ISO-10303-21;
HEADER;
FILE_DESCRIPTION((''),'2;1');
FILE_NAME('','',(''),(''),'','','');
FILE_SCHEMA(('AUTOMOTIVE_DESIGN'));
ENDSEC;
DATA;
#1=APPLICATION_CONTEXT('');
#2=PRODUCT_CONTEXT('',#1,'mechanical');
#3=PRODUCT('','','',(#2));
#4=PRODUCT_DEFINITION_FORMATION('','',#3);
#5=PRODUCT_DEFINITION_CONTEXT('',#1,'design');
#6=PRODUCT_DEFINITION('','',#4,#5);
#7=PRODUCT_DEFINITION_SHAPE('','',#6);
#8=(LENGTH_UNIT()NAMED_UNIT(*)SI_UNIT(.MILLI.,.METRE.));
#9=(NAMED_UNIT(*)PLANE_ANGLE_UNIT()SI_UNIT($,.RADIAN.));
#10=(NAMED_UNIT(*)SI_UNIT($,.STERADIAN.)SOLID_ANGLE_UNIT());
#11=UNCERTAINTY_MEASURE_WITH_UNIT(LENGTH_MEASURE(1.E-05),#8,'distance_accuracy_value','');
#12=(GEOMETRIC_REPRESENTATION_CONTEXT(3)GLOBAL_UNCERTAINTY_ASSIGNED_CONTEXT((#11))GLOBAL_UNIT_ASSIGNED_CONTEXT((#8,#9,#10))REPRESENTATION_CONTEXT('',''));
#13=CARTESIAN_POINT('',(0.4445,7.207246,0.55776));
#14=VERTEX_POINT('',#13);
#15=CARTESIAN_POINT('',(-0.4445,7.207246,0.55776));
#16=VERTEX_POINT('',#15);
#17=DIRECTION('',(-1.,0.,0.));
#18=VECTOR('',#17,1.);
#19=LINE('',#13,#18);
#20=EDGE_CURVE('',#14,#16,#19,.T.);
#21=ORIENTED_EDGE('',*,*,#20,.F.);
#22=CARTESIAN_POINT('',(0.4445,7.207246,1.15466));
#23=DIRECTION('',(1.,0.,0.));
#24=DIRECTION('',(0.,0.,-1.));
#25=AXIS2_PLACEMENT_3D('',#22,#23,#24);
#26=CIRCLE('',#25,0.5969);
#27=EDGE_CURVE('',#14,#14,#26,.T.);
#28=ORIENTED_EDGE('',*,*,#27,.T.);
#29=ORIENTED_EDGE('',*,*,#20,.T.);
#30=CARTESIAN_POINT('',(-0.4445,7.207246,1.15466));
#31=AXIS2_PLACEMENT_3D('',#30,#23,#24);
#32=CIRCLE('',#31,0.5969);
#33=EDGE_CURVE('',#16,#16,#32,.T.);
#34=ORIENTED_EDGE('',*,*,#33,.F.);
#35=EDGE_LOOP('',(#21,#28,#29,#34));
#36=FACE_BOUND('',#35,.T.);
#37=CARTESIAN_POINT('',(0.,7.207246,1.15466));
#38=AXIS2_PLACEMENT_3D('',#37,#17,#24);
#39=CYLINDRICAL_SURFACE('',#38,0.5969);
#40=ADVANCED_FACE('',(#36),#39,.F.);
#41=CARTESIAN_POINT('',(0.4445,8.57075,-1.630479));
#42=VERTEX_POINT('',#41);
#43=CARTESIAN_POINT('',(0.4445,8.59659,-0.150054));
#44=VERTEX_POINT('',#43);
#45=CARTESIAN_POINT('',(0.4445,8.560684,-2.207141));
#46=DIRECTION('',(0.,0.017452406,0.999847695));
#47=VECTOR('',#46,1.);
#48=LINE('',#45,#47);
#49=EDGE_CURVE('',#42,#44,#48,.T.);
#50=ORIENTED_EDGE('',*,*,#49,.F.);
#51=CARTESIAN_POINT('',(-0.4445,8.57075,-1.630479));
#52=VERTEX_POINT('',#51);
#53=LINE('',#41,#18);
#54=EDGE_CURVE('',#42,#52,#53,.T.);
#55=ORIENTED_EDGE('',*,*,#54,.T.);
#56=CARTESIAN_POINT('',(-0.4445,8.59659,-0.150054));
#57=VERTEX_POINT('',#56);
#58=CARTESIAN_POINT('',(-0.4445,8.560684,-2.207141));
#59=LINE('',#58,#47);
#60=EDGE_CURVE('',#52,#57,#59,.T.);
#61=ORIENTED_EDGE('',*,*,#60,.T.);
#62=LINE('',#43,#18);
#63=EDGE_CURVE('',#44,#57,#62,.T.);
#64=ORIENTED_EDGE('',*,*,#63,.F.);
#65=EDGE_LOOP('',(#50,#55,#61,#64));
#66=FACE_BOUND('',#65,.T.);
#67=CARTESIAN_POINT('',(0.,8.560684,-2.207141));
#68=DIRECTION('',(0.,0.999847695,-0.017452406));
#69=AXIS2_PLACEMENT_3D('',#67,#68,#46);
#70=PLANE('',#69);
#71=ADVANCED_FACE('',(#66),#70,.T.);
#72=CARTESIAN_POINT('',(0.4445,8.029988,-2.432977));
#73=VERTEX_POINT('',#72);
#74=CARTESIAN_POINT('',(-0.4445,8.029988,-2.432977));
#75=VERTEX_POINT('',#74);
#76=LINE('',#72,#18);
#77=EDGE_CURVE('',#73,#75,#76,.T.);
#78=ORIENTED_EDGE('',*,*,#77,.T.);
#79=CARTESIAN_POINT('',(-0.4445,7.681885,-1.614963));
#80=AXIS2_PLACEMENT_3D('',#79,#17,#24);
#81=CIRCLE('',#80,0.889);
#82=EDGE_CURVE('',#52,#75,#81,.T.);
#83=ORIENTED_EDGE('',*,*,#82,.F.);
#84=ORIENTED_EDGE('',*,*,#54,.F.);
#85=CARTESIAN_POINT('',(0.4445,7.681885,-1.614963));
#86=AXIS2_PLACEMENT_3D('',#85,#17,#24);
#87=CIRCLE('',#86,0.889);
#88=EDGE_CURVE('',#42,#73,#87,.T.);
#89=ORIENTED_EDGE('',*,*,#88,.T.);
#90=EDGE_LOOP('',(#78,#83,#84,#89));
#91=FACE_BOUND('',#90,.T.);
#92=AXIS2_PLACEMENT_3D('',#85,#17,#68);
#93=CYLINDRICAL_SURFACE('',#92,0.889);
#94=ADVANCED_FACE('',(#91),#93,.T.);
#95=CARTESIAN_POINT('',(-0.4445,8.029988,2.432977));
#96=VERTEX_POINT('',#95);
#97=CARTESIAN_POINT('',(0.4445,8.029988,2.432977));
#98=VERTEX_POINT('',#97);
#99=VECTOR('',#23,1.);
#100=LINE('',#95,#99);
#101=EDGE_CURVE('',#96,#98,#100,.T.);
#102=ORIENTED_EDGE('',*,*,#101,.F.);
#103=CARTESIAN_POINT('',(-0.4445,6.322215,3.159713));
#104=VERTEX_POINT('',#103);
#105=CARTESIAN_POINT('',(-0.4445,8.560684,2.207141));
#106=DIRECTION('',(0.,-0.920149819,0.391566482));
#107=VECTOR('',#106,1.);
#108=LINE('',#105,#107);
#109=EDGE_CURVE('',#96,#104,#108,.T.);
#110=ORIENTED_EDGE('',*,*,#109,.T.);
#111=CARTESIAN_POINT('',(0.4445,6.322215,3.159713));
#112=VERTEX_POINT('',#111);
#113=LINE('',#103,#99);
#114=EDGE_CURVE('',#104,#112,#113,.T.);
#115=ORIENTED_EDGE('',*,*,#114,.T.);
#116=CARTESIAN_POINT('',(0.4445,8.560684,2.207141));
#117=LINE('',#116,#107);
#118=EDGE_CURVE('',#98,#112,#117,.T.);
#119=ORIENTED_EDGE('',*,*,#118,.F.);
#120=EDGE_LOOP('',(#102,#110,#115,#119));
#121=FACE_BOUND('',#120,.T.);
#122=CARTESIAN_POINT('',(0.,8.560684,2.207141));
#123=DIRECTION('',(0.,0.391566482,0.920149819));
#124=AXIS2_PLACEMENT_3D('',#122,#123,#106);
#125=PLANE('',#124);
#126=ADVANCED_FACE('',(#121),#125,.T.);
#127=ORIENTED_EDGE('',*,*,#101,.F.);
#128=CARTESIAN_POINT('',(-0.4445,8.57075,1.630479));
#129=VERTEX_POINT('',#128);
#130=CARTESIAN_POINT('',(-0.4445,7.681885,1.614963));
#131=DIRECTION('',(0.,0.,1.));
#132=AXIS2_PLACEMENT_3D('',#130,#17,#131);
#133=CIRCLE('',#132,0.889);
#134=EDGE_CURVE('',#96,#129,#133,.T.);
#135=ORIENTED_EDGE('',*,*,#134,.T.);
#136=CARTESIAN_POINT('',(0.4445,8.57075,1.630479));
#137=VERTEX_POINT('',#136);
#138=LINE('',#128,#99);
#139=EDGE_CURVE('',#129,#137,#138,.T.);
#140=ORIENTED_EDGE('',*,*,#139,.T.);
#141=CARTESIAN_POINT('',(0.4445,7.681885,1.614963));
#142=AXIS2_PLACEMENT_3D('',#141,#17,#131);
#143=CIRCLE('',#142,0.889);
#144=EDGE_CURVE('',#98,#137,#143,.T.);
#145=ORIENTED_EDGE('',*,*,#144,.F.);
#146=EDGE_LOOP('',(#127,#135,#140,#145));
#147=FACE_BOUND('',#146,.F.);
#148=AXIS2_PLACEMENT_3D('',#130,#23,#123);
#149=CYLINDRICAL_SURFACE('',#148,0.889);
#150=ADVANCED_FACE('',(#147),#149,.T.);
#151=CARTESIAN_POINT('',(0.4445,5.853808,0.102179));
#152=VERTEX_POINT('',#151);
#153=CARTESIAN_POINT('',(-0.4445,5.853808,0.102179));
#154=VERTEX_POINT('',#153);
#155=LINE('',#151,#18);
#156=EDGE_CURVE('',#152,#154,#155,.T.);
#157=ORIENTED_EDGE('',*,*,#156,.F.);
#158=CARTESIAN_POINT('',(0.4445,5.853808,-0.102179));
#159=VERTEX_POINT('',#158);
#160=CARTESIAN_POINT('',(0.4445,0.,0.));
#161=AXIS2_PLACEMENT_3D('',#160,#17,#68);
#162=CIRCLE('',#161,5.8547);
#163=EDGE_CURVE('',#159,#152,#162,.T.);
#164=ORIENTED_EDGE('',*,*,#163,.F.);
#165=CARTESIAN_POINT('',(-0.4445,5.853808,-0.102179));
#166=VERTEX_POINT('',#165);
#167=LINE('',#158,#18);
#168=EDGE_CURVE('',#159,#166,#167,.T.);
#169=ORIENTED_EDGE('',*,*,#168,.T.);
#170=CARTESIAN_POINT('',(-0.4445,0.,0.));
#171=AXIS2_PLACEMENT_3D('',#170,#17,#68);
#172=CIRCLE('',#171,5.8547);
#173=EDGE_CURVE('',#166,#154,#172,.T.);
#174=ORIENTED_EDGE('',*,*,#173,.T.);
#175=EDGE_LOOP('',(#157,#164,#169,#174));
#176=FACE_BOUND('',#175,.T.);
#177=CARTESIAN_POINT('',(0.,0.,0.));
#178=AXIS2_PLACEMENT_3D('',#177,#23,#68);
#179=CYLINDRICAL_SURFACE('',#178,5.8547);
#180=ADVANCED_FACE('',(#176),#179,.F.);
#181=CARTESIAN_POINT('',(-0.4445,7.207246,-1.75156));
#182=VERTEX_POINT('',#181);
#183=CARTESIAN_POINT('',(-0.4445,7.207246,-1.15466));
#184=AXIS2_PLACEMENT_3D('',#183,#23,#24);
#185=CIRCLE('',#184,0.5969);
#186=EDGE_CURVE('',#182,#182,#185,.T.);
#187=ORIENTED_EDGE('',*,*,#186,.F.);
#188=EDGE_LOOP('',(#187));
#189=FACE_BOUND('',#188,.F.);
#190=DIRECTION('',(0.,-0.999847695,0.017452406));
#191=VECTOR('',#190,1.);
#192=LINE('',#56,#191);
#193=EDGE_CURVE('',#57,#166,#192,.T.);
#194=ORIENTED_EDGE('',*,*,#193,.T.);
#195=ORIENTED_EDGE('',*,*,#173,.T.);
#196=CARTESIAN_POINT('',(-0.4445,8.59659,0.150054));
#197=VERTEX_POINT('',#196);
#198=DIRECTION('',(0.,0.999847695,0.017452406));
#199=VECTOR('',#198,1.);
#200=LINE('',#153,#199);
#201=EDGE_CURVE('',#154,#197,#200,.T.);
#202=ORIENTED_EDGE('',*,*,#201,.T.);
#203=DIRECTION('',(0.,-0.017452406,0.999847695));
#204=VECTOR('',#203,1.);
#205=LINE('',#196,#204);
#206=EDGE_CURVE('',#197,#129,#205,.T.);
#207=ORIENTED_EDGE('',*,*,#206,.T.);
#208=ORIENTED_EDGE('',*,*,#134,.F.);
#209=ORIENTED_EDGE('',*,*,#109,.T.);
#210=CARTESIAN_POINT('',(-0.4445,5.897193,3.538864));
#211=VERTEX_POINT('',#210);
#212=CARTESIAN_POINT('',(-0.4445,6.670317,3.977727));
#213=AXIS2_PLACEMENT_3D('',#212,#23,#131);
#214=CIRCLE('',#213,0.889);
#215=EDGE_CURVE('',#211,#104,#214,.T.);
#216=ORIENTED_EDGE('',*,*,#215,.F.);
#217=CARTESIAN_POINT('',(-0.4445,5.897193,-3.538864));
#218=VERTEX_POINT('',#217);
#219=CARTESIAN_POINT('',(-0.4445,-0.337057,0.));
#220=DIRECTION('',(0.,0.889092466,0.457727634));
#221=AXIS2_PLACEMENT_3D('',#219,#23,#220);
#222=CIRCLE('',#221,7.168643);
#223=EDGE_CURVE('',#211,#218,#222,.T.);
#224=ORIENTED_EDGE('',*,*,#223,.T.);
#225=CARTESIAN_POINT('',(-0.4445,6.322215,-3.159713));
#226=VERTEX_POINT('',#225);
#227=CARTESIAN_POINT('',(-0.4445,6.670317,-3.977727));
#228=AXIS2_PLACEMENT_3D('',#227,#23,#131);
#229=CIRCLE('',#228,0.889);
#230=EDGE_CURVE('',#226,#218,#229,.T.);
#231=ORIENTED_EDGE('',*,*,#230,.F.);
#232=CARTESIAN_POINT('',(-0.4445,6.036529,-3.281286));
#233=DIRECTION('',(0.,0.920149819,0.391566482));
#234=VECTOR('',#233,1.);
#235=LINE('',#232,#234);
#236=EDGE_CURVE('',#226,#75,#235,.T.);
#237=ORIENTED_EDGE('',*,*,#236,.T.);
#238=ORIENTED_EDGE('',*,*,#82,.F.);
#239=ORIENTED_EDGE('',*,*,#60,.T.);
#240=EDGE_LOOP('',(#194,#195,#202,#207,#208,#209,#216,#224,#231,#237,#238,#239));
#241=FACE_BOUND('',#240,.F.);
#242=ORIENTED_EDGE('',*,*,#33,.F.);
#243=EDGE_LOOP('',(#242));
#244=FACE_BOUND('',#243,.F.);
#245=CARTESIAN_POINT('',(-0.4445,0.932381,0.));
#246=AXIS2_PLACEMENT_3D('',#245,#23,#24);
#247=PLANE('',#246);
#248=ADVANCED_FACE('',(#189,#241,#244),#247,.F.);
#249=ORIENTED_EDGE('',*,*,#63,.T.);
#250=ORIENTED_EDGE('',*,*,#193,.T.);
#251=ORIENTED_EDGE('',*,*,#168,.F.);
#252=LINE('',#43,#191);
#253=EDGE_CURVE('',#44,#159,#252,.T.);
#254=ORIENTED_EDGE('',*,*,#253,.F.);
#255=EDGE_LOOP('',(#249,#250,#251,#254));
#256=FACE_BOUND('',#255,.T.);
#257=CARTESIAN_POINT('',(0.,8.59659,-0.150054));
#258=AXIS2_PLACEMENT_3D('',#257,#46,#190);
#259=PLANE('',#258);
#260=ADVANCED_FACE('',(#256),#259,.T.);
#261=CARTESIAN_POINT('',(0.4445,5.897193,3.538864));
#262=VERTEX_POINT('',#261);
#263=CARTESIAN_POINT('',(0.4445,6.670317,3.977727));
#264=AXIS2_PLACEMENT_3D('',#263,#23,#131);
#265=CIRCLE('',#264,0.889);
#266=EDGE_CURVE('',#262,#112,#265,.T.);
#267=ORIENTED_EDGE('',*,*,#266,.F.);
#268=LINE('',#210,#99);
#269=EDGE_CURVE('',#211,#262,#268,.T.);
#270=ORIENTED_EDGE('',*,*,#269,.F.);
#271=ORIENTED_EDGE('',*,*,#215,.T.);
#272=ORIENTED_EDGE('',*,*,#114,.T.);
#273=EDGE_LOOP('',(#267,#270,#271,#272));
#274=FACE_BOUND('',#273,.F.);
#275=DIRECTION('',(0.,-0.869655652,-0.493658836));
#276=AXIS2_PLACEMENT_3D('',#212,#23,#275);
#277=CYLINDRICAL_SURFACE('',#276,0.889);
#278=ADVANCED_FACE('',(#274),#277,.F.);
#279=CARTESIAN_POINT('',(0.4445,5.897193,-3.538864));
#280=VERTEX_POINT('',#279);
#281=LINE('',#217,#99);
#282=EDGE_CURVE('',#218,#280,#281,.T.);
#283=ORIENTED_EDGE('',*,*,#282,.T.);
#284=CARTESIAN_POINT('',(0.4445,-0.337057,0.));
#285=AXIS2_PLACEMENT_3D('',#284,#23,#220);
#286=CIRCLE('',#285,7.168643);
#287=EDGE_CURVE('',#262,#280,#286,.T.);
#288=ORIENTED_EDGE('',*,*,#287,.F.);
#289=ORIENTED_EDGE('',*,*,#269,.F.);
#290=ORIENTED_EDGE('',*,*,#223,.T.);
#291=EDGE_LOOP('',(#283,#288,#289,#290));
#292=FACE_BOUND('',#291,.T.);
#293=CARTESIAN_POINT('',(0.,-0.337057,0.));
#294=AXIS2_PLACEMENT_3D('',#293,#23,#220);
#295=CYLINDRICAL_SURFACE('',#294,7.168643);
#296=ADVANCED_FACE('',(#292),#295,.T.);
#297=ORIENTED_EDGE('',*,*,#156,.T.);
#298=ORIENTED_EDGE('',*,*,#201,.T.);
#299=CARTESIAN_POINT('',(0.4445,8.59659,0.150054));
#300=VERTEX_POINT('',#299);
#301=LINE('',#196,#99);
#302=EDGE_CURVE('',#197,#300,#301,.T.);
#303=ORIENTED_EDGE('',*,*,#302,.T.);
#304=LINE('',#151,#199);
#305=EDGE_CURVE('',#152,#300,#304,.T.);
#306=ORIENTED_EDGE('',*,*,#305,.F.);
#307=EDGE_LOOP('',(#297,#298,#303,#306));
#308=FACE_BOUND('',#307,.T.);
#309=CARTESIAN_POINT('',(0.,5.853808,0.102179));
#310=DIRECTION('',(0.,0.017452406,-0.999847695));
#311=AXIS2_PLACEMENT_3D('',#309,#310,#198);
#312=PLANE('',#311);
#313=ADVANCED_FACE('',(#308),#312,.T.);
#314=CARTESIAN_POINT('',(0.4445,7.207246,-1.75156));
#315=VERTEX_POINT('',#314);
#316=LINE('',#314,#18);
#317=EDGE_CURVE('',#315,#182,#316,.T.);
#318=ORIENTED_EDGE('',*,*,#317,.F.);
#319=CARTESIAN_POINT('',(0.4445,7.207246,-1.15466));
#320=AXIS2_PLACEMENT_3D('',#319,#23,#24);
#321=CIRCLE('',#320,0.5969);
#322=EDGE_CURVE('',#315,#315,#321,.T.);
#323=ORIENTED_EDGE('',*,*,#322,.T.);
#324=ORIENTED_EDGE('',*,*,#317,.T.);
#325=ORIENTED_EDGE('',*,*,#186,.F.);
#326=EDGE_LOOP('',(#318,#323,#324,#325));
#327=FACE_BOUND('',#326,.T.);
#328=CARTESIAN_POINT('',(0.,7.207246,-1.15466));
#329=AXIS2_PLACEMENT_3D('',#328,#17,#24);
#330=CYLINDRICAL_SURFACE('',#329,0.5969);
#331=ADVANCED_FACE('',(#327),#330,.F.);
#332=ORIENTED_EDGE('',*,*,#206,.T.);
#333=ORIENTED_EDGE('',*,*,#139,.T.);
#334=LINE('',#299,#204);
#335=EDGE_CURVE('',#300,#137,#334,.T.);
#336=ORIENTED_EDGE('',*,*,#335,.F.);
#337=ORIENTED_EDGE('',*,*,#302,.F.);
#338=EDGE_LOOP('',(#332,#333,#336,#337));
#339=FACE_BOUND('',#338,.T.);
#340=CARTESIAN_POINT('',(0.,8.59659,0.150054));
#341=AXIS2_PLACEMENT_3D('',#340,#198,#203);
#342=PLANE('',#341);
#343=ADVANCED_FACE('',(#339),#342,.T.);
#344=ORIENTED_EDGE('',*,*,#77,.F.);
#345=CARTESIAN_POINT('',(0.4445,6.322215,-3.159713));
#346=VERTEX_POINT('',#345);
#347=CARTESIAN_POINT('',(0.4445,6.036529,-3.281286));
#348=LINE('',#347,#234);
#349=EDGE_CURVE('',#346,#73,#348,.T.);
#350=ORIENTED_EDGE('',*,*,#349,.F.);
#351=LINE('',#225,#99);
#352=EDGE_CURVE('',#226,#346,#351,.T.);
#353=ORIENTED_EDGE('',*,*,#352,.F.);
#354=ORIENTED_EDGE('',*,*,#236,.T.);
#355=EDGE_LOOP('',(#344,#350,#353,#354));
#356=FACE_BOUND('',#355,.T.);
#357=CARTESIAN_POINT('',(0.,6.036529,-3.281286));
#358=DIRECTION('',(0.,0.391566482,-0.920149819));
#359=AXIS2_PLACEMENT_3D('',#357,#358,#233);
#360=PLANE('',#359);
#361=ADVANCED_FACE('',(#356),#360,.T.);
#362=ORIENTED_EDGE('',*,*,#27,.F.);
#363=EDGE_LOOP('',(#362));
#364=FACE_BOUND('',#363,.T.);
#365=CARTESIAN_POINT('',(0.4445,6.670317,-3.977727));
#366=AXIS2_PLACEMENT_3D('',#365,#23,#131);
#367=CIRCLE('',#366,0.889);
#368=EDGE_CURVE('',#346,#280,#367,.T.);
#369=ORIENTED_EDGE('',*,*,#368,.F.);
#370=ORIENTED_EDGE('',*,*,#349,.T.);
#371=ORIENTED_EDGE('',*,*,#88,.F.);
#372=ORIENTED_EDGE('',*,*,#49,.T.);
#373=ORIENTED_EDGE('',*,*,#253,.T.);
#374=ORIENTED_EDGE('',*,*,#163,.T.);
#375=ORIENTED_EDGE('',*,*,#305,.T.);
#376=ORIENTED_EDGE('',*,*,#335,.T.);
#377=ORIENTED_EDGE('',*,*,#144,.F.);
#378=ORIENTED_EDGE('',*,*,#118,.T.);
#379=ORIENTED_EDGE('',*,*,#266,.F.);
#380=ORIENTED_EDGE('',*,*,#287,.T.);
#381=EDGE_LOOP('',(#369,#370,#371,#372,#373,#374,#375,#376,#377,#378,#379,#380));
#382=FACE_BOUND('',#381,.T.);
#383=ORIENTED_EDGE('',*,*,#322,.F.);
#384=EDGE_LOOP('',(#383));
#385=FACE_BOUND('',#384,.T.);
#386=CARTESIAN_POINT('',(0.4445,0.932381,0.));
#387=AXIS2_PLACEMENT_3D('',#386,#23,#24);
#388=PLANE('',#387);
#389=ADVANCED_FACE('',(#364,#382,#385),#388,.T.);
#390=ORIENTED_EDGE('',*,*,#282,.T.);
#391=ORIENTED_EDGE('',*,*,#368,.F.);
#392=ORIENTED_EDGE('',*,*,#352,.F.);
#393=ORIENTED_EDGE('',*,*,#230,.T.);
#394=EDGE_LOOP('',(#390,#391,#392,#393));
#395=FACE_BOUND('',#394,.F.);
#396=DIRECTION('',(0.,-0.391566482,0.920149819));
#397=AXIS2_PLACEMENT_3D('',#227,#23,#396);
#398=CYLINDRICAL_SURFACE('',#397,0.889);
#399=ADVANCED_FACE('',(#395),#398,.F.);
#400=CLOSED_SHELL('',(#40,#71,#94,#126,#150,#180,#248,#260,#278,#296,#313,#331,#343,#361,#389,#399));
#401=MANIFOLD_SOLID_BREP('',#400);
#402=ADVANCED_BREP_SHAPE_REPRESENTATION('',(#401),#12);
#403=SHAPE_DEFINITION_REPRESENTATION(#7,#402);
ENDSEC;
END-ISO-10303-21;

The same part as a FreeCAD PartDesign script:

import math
import FreeCAD as App
import Part
import Sketcher
Q = App.Units.Quantity


def edges_at(feature, points):
    """Names of the edges that pass closest to the given points."""
    edges = feature.Shape.Edges
    near = lambda p: min(range(len(edges)), key=lambda i: edges[i].distToShape(Part.Vertex(*p))[0])
    return sorted({f"Edge{near(p) + 1}" for p in points})

doc = App.newDocument("Part")
body = doc.addObject("PartDesign::Body", "Body")

# Sketch on YZ plane
sketch1 = doc.addObject("Sketcher::SketchObject", "Sketch")
body.addObject(sketch1)
sketch1.AttachmentSupport = (doc.YZ_Plane, [""])
sketch1.MapMode = "FlatFace"
sketch1.addGeometry([
    Part.LineSegment(App.Vector(5.85, 0.1, 0), App.Vector(8.6, 0.15, 0)),  # 0
    Part.LineSegment(App.Vector(8.6, 0.15, 0), App.Vector(8.56, 2.21, 0)),  # 1
    Part.LineSegment(App.Vector(8.56, 2.21, 0), App.Vector(6.04, 3.28, 0)),  # 2
    Part.ArcOfCircle(Part.Circle(App.Vector(-0.34, 0, 0), App.Vector(0, 0, 1), 7.17), math.radians(27), math.radians(333)),  # 3
    Part.LineSegment(App.Vector(6.04, -3.28, 0), App.Vector(8.56, -2.21, 0)),  # 4
    Part.LineSegment(App.Vector(8.56, -2.21, 0), App.Vector(8.6, -0.15, 0)),  # 5
    Part.LineSegment(App.Vector(8.6, -0.15, 0), App.Vector(5.85, -0.1, 0)),  # 6
    Part.ArcOfCircle(Part.Circle(App.Vector(0, 0, 0), App.Vector(0, 0, 1), 5.85), math.radians(1), math.radians(359)),  # 7
    Part.Circle(App.Vector(7.21, 1.15, 0), App.Vector(0, 0, 1), 0.6),  # 8
    Part.Circle(App.Vector(7.21, -1.15, 0), App.Vector(0, 0, 1), 0.6),  # 9
], False)
sketch1.addConstraint([
    Sketcher.Constraint("Coincident", 0, 2, 1, 1),
    Sketcher.Constraint("Coincident", 1, 2, 2, 1),
    Sketcher.Constraint("Coincident", 2, 2, 3, 1),
    Sketcher.Constraint("Coincident", 3, 2, 4, 1),
    Sketcher.Constraint("Coincident", 4, 2, 5, 1),
    Sketcher.Constraint("Coincident", 5, 2, 6, 1),
    Sketcher.Constraint("Coincident", 6, 2, 7, 2),
    Sketcher.Constraint("Coincident", 7, 1, 0, 1),
    Sketcher.Constraint("Coincident", 7, 3, -1, 1),
    Sketcher.Constraint("Equal", 8, 9),
    Sketcher.Constraint("Symmetric", 8, 3, 9, 3, -1),
    Sketcher.Constraint("Symmetric", 2, 2, 3, 2, -1),
    Sketcher.Constraint("Symmetric", 1, 2, 4, 2, -1),
    Sketcher.Constraint("Symmetric", 0, 2, 5, 2, -1),
    Sketcher.Constraint("Perpendicular", 0, 1),
    Sketcher.Constraint("Perpendicular", 5, 6),
    Sketcher.Constraint("Equal", 0, 2),
    Sketcher.Constraint("Diameter", 8, Q("0.047 in")),
    Sketcher.Constraint("Angle", 0, Q("1 deg")),
    Sketcher.Constraint("Radius", 7, Q("0.2305 in")),
    Sketcher.Constraint("Distance", 0, Q("0.108 in")),
    Sketcher.Constraint("Distance", 1, Q("0.081 in")),
    Sketcher.Constraint("Radius", 3, Q("7.168643 mm")),
    Sketcher.Constraint("DistanceY", 9, 3, 1, 2, Q("3.3618 mm")),
    Sketcher.Constraint("DistanceY", -1, 1, 8, 3, Q("1.15466 mm")),
    Sketcher.Constraint("DistanceX", -1, 1, 2, 2, Q("6.036529 mm")),
    Sketcher.Constraint("DistanceX", -1, 1, 8, 3, Q("7.207246 mm")),
])
pad1 = doc.addObject("PartDesign::Pad", "Pad")
body.addObject(pad1)
pad1.Profile = sketch1
pad1.Length = Q("0.035 in")
pad1.Midplane = True
doc.recompute()

fillet = doc.addObject("PartDesign::Fillet", "Fillet")
body.addObject(fillet)
fillet.Base = (pad1, edges_at(pad1, [
    (0, 8.561, -2.207),
    (0, 6.037, -3.281),
    (0, 6.037, 3.281),
    (0, 8.561, 2.207),
]))
fillet.Radius = Q("0.035 in")

doc.recompute()
